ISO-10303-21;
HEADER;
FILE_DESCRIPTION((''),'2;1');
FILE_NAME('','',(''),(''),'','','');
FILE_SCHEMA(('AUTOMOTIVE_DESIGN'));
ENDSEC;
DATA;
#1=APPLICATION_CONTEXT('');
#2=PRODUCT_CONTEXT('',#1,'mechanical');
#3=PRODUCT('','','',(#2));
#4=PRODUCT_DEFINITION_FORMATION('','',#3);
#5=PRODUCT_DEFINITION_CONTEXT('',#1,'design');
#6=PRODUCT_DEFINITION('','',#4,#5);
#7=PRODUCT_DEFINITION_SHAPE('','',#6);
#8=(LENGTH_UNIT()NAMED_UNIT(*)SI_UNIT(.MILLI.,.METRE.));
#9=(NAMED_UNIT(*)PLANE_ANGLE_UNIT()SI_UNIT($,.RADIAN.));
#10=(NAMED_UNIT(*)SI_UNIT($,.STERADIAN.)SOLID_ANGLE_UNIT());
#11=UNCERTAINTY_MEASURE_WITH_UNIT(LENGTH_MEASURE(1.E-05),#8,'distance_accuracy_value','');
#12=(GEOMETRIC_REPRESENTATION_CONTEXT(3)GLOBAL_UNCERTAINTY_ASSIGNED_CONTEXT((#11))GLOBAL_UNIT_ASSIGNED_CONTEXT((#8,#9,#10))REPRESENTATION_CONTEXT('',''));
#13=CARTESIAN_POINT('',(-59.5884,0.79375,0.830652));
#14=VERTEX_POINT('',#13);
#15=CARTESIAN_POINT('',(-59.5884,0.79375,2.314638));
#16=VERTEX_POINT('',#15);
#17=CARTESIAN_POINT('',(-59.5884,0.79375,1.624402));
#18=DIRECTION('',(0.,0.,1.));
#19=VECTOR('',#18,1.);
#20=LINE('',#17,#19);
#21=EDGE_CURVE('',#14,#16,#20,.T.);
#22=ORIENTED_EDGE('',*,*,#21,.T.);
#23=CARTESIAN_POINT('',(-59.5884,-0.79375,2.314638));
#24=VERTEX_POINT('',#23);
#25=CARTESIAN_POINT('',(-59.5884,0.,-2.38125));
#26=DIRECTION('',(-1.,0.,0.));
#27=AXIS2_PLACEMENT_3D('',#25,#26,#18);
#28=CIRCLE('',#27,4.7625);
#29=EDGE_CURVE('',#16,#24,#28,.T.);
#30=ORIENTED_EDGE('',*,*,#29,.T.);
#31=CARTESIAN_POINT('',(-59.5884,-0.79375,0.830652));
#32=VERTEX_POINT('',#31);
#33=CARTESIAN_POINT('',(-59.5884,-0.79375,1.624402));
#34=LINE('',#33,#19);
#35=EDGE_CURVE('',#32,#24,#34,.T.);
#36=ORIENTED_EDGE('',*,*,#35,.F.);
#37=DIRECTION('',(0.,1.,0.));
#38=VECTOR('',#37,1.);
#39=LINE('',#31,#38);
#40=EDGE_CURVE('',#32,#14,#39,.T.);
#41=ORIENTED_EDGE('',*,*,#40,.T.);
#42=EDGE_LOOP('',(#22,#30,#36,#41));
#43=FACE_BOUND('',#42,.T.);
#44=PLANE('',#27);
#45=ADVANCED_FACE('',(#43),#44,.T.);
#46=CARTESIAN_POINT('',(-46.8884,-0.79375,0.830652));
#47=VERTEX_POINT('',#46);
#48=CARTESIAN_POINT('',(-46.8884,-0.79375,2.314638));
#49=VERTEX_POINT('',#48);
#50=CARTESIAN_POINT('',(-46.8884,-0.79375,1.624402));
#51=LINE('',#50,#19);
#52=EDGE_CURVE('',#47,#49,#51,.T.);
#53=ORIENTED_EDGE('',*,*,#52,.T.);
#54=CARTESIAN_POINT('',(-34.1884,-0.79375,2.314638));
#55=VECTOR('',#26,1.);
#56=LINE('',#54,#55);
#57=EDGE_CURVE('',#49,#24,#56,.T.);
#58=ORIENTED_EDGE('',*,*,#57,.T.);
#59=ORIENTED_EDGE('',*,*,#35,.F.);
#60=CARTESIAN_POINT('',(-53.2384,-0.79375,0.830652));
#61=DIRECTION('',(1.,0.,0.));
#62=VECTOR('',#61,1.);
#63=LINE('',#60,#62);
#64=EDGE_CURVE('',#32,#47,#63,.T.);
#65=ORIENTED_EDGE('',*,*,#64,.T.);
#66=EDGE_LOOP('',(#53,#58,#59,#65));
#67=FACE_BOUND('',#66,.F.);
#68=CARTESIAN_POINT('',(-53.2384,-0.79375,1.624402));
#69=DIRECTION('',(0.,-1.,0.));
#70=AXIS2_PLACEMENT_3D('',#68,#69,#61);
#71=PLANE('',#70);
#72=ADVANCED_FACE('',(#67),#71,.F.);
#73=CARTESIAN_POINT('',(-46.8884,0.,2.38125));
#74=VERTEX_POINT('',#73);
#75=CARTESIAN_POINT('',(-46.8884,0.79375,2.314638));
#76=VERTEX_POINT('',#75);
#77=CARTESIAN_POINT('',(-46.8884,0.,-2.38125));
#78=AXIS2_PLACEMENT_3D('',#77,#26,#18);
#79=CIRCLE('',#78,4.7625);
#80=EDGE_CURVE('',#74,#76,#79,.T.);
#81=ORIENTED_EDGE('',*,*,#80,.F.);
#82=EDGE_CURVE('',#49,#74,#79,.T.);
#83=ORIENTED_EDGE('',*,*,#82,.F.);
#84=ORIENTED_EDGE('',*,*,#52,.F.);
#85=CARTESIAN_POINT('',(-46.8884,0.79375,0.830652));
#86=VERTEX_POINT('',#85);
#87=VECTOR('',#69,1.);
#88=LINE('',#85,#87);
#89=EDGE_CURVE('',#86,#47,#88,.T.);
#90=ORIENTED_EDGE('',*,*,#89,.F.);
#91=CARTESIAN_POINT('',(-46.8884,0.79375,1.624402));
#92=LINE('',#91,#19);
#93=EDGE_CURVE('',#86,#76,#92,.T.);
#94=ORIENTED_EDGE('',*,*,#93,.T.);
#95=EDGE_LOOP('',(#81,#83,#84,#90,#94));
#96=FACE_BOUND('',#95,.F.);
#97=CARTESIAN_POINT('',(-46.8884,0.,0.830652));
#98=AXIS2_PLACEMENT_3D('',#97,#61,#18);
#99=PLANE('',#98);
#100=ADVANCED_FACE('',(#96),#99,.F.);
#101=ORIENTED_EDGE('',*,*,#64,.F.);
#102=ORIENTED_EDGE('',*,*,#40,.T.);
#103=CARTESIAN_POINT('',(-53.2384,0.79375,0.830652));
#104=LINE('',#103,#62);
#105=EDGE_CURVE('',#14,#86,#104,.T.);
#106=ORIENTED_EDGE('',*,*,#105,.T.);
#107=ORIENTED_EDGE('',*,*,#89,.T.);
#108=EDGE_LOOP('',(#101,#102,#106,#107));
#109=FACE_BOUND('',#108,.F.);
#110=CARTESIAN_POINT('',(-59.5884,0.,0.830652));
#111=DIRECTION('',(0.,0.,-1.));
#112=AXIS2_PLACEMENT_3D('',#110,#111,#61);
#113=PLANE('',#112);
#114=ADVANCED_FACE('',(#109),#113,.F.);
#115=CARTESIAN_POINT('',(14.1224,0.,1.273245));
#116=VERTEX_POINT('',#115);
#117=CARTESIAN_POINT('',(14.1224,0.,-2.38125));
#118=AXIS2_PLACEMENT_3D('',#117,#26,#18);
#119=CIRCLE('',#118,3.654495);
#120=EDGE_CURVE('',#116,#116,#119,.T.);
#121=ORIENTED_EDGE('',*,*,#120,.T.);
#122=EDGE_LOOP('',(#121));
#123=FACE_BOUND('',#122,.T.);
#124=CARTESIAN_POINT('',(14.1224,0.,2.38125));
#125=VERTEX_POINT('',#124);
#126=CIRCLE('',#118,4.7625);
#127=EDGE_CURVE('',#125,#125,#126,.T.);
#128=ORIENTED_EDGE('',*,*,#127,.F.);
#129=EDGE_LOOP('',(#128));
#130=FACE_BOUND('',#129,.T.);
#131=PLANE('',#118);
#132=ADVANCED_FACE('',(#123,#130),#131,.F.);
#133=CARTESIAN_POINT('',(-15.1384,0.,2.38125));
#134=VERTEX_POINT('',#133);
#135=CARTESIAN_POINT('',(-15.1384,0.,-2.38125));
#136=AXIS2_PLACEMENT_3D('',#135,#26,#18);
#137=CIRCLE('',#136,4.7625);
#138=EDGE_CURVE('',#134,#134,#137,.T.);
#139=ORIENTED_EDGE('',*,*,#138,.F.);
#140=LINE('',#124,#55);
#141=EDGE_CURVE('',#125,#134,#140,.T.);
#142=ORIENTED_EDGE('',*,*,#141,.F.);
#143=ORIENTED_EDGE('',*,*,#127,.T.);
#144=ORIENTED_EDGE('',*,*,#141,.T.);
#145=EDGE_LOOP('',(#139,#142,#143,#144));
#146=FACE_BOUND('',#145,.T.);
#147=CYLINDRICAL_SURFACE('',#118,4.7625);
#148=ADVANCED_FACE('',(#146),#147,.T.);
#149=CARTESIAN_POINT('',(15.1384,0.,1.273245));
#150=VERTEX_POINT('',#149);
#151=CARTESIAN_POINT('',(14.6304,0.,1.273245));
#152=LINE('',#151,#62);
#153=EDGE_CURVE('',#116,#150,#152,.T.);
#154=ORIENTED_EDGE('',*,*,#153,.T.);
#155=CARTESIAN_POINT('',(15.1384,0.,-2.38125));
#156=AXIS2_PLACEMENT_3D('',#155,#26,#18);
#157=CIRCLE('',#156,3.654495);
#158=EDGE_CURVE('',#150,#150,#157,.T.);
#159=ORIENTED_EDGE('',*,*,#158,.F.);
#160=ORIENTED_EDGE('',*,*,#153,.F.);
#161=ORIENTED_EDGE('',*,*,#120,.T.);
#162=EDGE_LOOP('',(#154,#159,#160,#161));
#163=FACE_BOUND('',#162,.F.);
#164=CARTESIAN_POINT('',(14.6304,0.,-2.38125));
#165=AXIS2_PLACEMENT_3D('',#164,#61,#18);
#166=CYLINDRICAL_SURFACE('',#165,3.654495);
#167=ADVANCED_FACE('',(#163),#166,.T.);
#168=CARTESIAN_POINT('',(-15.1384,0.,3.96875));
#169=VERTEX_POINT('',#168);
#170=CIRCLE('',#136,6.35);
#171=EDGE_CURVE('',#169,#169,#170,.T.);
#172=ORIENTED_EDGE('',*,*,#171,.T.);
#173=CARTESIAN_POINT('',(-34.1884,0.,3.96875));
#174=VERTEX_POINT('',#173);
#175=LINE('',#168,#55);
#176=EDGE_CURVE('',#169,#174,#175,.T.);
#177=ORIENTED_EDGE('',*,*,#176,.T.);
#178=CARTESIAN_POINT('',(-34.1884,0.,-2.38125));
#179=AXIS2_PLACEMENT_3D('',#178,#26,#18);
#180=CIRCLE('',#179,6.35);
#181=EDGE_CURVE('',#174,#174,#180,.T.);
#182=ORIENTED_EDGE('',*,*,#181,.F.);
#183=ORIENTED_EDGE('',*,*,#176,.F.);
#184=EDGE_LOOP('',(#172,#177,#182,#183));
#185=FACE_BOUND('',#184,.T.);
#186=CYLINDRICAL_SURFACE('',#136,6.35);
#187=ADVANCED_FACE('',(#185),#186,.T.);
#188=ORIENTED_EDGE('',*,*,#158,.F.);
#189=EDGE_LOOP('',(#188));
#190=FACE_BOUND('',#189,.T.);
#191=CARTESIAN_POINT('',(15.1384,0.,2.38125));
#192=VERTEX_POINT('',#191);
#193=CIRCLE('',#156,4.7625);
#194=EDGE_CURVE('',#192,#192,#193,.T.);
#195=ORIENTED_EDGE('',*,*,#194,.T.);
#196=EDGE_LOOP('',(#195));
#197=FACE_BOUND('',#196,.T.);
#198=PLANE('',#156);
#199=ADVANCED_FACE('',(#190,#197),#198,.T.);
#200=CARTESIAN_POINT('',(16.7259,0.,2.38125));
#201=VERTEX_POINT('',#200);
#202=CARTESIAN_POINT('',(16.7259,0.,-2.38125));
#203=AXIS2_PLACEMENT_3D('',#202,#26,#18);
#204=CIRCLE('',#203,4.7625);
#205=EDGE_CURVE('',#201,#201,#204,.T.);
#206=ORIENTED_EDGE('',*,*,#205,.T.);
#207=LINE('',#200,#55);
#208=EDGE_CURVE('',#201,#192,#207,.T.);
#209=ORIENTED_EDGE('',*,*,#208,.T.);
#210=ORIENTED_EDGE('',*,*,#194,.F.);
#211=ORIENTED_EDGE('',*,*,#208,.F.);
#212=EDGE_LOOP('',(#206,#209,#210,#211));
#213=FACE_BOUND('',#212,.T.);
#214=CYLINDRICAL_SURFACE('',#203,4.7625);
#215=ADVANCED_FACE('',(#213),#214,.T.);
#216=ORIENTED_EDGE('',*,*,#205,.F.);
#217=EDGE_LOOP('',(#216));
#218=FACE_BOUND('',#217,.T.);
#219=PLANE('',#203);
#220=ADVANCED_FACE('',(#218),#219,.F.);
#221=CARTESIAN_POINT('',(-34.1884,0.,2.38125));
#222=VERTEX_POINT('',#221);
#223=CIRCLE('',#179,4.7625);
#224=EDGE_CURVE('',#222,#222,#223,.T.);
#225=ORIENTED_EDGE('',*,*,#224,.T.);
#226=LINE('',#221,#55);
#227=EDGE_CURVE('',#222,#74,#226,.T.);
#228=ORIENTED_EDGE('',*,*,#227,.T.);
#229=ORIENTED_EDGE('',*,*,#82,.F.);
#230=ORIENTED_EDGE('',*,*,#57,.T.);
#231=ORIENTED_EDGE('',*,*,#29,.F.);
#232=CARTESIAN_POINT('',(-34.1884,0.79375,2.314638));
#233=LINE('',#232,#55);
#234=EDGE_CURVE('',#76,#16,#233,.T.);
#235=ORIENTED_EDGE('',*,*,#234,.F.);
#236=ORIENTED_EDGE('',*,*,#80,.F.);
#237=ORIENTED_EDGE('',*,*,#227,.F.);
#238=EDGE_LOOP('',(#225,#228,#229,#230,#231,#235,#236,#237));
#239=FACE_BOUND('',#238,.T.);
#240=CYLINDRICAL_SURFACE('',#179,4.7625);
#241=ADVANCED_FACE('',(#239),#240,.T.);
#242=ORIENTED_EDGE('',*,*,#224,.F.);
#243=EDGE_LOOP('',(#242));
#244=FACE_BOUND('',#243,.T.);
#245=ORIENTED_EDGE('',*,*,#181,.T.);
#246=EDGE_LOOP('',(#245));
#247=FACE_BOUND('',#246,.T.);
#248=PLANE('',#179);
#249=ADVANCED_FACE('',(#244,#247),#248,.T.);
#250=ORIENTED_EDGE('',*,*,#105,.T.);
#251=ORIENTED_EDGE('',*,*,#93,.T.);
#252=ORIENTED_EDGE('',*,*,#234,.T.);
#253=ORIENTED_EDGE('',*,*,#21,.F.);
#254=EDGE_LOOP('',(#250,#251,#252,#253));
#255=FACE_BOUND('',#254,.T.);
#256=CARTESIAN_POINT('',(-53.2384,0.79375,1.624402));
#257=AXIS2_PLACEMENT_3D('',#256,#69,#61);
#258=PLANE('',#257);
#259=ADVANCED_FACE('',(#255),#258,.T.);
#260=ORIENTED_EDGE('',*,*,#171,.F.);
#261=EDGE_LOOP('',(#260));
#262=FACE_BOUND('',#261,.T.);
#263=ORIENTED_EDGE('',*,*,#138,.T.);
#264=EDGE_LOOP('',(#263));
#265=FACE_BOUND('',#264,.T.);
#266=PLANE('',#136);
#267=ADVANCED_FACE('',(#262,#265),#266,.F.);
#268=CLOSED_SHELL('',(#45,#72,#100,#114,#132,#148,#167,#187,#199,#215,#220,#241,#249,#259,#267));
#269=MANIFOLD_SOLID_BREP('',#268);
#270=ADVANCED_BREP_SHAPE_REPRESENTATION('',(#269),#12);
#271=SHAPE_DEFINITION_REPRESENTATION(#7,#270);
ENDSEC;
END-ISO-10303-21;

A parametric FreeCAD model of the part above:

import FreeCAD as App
import Part
import Sketcher

V = App.Vector
Q = App.Units.Quantity

doc = App.newDocument("Part")
body = doc.addObject("PartDesign::Body", "Body")

sketch1 = body.newObject("Sketcher::SketchObject", "Sketch")
sketch1.AttachmentSupport = (doc.getObject("XZ_Plane"), [""])
sketch1.MapMode = "FlatFace"
sketch1.addGeometry(Part.LineSegment(V(14.1, 1.3, 0), V(14.1, 2.4, 0)), False)
sketch1.addGeometry(Part.LineSegment(V(14.1, 2.4, 0), V(-15.1, 2.4, 0)), False)
sketch1.addGeometry(Part.LineSegment(V(-15.1, 2.4, 0), V(-15.1, 4, 0)), False)
sketch1.addGeometry(Part.LineSegment(V(-15.1, 4, 0), V(-34.2, 4, 0)), False)
sketch1.addGeometry(Part.LineSegment(V(-34.2, 4, 0), V(-34.2, 2.4, 0)), False)
sketch1.addGeometry(Part.LineSegment(V(-34.2, 2.4, 0), V(-59.6, 2.4, 0)), False)
sketch1.addGeometry(Part.LineSegment(V(-59.6, 2.4, 0), V(-59.6, -2.4, 0)), False)
sketch1.addGeometry(Part.LineSegment(V(-59.6, -2.4, 0), V(16.7, -2.4, 0)), False)
sketch1.addGeometry(Part.LineSegment(V(16.7, -2.4, 0), V(16.7, 2.4, 0)), False)
sketch1.addGeometry(Part.LineSegment(V(16.7, 2.4, 0), V(15.1, 2.4, 0)), False)
sketch1.addGeometry(Part.LineSegment(V(15.1, 2.4, 0), V(15.1, 1.3, 0)), False)
sketch1.addGeometry(Part.LineSegment(V(15.1, 1.3, 0), V(14.1, 1.3, 0)), False)
sketch1.addGeometry(Part.LineSegment(V(16.7, -2.4, 0), V(-59.6, -2.4, 0)), True)
sketch1.addConstraint(Sketcher.Constraint("Coincident", 0, 2, 1, 1))
sketch1.addConstraint(Sketcher.Constraint("Coincident", 1, 2, 2, 1))
sketch1.addConstraint(Sketcher.Constraint("Coincident", 2, 2, 3, 1))
sketch1.addConstraint(Sketcher.Constraint("Coincident", 3, 2, 4, 1))
sketch1.addConstraint(Sketcher.Constraint("Coincident", 4, 2, 5, 1))
sketch1.addConstraint(Sketcher.Constraint("Coincident", 5, 2, 6, 1))
sketch1.addConstraint(Sketcher.Constraint("Coincident", 6, 2, 7, 1))
sketch1.addConstraint(Sketcher.Constraint("Coincident", 7, 2, 8, 1))
sketch1.addConstraint(Sketcher.Constraint("Coincident", 8, 2, 9, 1))
sketch1.addConstraint(Sketcher.Constraint("Coincident", 9, 2, 10, 1))
sketch1.addConstraint(Sketcher.Constraint("Coincident", 10, 2, 11, 1))
sketch1.addConstraint(Sketcher.Constraint("Coincident", 11, 2, 0, 1))
sketch1.addConstraint(Sketcher.Constraint("Vertical", 0))
sketch1.addConstraint(Sketcher.Constraint("Horizontal", 1))
sketch1.addConstraint(Sketcher.Constraint("Vertical", 2))
sketch1.addConstraint(Sketcher.Constraint("Horizontal", 3))
sketch1.addConstraint(Sketcher.Constraint("Vertical", 4))
sketch1.addConstraint(Sketcher.Constraint("Horizontal", 5))
sketch1.addConstraint(Sketcher.Constraint("Vertical", 6))
sketch1.addConstraint(Sketcher.Constraint("Horizontal", 7))
sketch1.addConstraint(Sketcher.Constraint("Vertical", 8))
sketch1.addConstraint(Sketcher.Constraint("Horizontal", 9))
sketch1.addConstraint(Sketcher.Constraint("Vertical", 10))
sketch1.addConstraint(Sketcher.Constraint("Horizontal", 11))
sketch1.addConstraint(Sketcher.Constraint("Horizontal", 12))
sketch1.addConstraint(Sketcher.Constraint("Coincident", 12, 1, 7, 2))
sketch1.addConstraint(Sketcher.Constraint("Symmetric", 1, 2, 9, 2, -2))
sketch1.addConstraint(Sketcher.Constraint("Symmetric", 5, 2, 12, 2, -1))
sketch1.addConstraint(Sketcher.Constraint("Horizontal", 1, 2, 4, 2))
sketch1.addConstraint(Sketcher.Constraint("Equal", 9, 2))
sketch1.addConstraint(Sketcher.Constraint("DistanceX", 5, 2, 5, 1, Q("1 in")))
sketch1.addConstraint(Sketcher.Constraint("DistanceX", 3, 2, 3, 1, Q("0.75 in")))
sketch1.addConstraint(Sketcher.Constraint("DistanceX", 11, 2, 11, 1, Q("0.04 in")))
sketch1.addConstraint(Sketcher.Constraint("DistanceX", 1, 2, 1, 1, Q("1.152 in")))
sketch1.addConstraint(Sketcher.Constraint("DistanceX", 9, 2, 9, 1, Q("0.0625 in")))
sketch1.addConstraint(Sketcher.Constraint("DistanceY", 6, 2, 6, 1, Q("0.1875 in")))
sketch1.addConstraint(Sketcher.Constraint("DistanceY", 0, 1, 0, 2, 1.108005))
revolution = body.newObject("PartDesign::Revolution", "Revolution")
revolution.Profile = sketch1
revolution.ReferenceAxis = (sketch1, ["Axis0"])
revolution.Angle = 360

sketch2 = body.newObject("Sketcher::SketchObject", "Sketch001")
sketch2.AttachmentSupport = (doc.getObject("XZ_Plane"), [""])
sketch2.MapMode = "FlatFace"
sketch2.addGeometry(Part.LineSegment(V(-59.6, 2.4, 0), V(-59.6, 0.8, 0)), False)
sketch2.addGeometry(Part.LineSegment(V(-59.6, 0.8, 0), V(-46.9, 0.8, 0)), False)
sketch2.addGeometry(Part.LineSegment(V(-46.9, 0.8, 0), V(-46.9, 2.4, 0)), False)
sketch2.addGeometry(Part.LineSegment(V(-46.9, 2.4, 0), V(-59.6, 2.4, 0)), False)
sketch2.addConstraint(Sketcher.Constraint("Coincident", 0, 2, 1, 1))
sketch2.addConstraint(Sketcher.Constraint("Coincident", 1, 2, 2, 1))
sketch2.addConstraint(Sketcher.Constraint("Coincident", 2, 2, 3, 1))
sketch2.addConstraint(Sketcher.Constraint("Coincident", 3, 2, 0, 1))
sketch2.addConstraint(Sketcher.Constraint("Vertical", 0))
sketch2.addConstraint(Sketcher.Constraint("Horizontal", 1))
sketch2.addConstraint(Sketcher.Constraint("Vertical", 2))
sketch2.addConstraint(Sketcher.Constraint("Horizontal", 3))
sketch2.addConstraint(Sketcher.Constraint("DistanceX", 1, 1, 1, 2, Q("0.5 in")))
sketch2.addConstraint(Sketcher.Constraint("DistanceY", 0, 2, 0, 1, Q("0.0625 in")))
sketch2.addConstraint(Sketcher.Constraint("DistanceX", 0, 2, -1, 1, Q("2.346 in")))
sketch2.addConstraint(Sketcher.Constraint("DistanceY", -1, 1, 0, 2, 0.830652))
pocket1 = body.newObject("PartDesign::Pocket", "Pocket")
pocket1.Profile = sketch2
pocket1.Type = "TwoLengths"
pocket1.Length = Q("0.03125 in")
pocket1.Length2 = Q("0.03125 in")

doc.recompute()
